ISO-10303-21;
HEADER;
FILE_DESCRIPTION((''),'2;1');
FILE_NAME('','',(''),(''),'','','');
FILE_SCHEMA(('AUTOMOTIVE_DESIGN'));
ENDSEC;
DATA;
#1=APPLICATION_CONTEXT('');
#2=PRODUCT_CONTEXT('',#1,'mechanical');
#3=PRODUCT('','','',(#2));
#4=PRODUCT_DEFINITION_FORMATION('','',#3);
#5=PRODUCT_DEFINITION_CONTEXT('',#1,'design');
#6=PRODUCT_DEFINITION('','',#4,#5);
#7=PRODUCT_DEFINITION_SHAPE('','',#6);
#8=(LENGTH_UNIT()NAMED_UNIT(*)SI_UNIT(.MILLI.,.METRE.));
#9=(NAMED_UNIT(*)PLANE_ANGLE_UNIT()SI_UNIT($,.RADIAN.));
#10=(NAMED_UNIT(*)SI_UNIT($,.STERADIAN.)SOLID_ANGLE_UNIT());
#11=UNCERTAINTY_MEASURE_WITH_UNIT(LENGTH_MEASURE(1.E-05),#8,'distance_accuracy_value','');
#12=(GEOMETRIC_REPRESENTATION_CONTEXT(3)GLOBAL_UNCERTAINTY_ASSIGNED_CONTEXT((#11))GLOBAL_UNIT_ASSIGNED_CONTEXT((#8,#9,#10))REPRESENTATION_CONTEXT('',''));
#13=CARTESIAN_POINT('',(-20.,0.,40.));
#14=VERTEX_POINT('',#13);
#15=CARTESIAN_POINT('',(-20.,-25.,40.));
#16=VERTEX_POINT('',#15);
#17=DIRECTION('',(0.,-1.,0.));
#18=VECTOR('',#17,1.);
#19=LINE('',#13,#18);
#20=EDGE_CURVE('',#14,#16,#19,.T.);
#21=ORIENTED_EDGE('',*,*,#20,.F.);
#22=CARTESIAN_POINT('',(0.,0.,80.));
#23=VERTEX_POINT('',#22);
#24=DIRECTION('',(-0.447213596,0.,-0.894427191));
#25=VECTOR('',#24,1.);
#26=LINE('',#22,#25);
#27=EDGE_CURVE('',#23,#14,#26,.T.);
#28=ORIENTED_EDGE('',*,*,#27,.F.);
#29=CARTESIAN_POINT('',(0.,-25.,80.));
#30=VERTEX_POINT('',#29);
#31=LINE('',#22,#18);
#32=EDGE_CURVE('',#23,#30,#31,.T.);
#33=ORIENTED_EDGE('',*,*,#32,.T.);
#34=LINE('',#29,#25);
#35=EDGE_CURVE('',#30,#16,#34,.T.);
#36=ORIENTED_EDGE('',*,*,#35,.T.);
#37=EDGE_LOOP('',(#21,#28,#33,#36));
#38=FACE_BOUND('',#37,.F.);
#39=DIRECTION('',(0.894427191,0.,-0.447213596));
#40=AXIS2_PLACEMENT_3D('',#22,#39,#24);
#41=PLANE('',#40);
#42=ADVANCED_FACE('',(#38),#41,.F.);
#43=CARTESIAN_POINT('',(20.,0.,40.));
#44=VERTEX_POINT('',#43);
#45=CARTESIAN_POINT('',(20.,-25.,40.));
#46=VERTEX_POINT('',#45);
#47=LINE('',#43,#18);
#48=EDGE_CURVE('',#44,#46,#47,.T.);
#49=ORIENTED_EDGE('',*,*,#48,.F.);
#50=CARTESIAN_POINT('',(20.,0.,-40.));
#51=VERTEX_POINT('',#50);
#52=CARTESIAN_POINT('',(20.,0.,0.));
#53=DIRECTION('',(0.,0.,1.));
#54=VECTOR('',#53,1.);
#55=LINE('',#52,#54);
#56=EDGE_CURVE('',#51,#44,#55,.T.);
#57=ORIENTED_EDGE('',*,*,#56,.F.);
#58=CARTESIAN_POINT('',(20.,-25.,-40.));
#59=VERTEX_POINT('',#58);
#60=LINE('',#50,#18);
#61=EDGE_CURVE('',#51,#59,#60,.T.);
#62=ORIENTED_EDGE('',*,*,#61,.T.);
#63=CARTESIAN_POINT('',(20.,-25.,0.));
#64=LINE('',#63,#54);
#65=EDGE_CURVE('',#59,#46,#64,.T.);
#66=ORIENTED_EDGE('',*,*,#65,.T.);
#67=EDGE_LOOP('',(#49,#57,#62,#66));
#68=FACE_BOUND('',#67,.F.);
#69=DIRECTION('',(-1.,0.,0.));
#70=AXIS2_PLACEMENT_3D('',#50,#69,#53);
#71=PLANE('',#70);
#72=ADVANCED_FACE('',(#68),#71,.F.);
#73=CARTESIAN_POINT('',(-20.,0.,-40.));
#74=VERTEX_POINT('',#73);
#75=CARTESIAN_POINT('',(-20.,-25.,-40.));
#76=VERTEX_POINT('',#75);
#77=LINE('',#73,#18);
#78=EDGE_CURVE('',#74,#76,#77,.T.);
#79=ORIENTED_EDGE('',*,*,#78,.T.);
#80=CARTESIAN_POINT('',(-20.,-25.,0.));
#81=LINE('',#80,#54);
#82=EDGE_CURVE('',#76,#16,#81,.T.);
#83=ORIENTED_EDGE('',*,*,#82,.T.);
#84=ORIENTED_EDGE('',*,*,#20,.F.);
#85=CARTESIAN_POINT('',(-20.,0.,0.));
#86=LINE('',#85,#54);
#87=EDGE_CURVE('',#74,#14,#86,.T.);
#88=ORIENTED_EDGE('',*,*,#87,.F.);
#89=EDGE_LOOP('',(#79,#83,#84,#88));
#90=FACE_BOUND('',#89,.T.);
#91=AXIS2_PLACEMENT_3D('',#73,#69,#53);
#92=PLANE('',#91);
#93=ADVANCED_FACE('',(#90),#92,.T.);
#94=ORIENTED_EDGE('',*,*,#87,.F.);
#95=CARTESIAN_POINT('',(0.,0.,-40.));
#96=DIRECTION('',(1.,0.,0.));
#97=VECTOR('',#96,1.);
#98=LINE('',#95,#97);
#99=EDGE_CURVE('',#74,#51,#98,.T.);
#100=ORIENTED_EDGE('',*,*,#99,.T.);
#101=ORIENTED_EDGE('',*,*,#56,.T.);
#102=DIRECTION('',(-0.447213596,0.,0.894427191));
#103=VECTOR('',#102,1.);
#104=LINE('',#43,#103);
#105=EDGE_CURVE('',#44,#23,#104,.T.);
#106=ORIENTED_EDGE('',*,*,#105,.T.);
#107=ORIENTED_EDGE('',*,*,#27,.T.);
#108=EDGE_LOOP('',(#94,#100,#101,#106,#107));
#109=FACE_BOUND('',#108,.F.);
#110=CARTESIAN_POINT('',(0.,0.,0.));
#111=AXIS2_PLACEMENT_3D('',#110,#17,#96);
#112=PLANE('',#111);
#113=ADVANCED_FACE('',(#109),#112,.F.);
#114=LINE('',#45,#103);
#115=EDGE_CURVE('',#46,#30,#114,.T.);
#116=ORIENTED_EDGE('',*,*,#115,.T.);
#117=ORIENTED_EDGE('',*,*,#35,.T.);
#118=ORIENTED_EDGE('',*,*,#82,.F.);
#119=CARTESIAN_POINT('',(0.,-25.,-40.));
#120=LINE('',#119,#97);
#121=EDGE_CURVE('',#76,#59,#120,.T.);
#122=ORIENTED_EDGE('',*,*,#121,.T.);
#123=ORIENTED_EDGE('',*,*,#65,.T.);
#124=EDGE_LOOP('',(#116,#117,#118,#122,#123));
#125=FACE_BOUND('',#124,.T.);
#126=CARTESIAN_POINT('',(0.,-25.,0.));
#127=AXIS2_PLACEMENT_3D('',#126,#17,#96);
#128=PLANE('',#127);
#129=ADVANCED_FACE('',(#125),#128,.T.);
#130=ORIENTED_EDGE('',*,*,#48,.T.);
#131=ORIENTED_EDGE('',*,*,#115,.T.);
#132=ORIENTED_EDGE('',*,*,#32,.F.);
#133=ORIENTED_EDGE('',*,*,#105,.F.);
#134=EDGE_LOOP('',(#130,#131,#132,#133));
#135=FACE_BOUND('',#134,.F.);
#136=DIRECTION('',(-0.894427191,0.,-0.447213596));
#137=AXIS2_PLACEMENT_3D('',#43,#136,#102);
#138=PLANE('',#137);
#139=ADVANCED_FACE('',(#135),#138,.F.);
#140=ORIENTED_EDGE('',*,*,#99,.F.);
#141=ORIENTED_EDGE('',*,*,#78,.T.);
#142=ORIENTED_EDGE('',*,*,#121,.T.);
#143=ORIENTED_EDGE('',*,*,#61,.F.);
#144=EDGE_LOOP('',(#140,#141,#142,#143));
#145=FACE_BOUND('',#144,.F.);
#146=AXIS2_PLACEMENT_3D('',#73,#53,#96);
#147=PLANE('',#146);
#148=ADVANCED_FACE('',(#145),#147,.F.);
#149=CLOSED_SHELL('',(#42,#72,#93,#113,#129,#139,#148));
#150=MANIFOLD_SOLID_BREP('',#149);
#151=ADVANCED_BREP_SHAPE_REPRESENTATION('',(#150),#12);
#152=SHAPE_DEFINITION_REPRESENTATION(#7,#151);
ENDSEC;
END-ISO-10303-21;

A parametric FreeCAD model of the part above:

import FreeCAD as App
import Part
import Sketcher

V = App.Vector

doc = App.newDocument("Part")
params = doc.addObject("Spreadsheet::Sheet", "Params")
for row, (alias, value) in enumerate([
    ("sketch1_width", "40 mm"),
    ("sketch1_height", "80 mm"),
    ("pad1_length", "25 mm"),
], start=1):
    params.set(f"A{row}", alias)
    params.set(f"B{row}", "=" + value)
    params.setAlias(f"B{row}", alias)

body = doc.addObject("PartDesign::Body", "Body")

# Sketch on XZ plane
sketch1 = body.newObject("Sketcher::SketchObject", "Sketch")
sketch1.AttachmentSupport = (doc.getObject("XZ_Plane"), [""])
sketch1.MapMode = "FlatFace"
sketch1.addGeometry([
    Part.LineSegment(V(-20, 40, 0), V(-20, -40, 0)),  # 0
    Part.LineSegment(V(-20, -40, 0), V(20, -40, 0)),  # 1
    Part.LineSegment(V(20, -40, 0), V(20, 40, 0)),  # 2
    Part.LineSegment(V(20, 40, 0), V(0, 80, 0)),  # 3
    Part.LineSegment(V(0, 80, 0), V(-20, 40, 0)),  # 4
], False)
sketch1.addConstraint([
    Sketcher.Constraint("Coincident", 0, 2, 1, 1),
    Sketcher.Constraint("Coincident", 1, 2, 2, 1),
    Sketcher.Constraint("Coincident", 2, 2, 3, 1),
    Sketcher.Constraint("Coincident", 3, 2, 4, 1),
    Sketcher.Constraint("Coincident", 4, 2, 0, 1),
    Sketcher.Constraint("Vertical", 0),
    Sketcher.Constraint("Horizontal", 1),
    Sketcher.Constraint("Vertical", 2),
    Sketcher.Constraint("Symmetric", 0, 2, 2, 2, -1, 1),
    Sketcher.Constraint("PointOnObject", 3, 2, -2),
    Sketcher.Constraint("Horizontal", 2, 2, 4, 2),
    Sketcher.Constraint("DistanceX", 1, 1, 1, 2, 40.0),
    Sketcher.Constraint("DistanceY", 0, 2, 0, 1, 80.0),
    Sketcher.Constraint("DistanceY", -1, 1, 3, 2, 80.0),
])
sketch1.setExpression("Constraints[11]", "Params.sketch1_width")
sketch1.setExpression("Constraints[12]", "Params.sketch1_height")
pad1 = body.newObject("PartDesign::Pad", "Pad")
pad1.Profile = sketch1
pad1.setExpression("Length", "Params.pad1_length")

doc.recompute()
